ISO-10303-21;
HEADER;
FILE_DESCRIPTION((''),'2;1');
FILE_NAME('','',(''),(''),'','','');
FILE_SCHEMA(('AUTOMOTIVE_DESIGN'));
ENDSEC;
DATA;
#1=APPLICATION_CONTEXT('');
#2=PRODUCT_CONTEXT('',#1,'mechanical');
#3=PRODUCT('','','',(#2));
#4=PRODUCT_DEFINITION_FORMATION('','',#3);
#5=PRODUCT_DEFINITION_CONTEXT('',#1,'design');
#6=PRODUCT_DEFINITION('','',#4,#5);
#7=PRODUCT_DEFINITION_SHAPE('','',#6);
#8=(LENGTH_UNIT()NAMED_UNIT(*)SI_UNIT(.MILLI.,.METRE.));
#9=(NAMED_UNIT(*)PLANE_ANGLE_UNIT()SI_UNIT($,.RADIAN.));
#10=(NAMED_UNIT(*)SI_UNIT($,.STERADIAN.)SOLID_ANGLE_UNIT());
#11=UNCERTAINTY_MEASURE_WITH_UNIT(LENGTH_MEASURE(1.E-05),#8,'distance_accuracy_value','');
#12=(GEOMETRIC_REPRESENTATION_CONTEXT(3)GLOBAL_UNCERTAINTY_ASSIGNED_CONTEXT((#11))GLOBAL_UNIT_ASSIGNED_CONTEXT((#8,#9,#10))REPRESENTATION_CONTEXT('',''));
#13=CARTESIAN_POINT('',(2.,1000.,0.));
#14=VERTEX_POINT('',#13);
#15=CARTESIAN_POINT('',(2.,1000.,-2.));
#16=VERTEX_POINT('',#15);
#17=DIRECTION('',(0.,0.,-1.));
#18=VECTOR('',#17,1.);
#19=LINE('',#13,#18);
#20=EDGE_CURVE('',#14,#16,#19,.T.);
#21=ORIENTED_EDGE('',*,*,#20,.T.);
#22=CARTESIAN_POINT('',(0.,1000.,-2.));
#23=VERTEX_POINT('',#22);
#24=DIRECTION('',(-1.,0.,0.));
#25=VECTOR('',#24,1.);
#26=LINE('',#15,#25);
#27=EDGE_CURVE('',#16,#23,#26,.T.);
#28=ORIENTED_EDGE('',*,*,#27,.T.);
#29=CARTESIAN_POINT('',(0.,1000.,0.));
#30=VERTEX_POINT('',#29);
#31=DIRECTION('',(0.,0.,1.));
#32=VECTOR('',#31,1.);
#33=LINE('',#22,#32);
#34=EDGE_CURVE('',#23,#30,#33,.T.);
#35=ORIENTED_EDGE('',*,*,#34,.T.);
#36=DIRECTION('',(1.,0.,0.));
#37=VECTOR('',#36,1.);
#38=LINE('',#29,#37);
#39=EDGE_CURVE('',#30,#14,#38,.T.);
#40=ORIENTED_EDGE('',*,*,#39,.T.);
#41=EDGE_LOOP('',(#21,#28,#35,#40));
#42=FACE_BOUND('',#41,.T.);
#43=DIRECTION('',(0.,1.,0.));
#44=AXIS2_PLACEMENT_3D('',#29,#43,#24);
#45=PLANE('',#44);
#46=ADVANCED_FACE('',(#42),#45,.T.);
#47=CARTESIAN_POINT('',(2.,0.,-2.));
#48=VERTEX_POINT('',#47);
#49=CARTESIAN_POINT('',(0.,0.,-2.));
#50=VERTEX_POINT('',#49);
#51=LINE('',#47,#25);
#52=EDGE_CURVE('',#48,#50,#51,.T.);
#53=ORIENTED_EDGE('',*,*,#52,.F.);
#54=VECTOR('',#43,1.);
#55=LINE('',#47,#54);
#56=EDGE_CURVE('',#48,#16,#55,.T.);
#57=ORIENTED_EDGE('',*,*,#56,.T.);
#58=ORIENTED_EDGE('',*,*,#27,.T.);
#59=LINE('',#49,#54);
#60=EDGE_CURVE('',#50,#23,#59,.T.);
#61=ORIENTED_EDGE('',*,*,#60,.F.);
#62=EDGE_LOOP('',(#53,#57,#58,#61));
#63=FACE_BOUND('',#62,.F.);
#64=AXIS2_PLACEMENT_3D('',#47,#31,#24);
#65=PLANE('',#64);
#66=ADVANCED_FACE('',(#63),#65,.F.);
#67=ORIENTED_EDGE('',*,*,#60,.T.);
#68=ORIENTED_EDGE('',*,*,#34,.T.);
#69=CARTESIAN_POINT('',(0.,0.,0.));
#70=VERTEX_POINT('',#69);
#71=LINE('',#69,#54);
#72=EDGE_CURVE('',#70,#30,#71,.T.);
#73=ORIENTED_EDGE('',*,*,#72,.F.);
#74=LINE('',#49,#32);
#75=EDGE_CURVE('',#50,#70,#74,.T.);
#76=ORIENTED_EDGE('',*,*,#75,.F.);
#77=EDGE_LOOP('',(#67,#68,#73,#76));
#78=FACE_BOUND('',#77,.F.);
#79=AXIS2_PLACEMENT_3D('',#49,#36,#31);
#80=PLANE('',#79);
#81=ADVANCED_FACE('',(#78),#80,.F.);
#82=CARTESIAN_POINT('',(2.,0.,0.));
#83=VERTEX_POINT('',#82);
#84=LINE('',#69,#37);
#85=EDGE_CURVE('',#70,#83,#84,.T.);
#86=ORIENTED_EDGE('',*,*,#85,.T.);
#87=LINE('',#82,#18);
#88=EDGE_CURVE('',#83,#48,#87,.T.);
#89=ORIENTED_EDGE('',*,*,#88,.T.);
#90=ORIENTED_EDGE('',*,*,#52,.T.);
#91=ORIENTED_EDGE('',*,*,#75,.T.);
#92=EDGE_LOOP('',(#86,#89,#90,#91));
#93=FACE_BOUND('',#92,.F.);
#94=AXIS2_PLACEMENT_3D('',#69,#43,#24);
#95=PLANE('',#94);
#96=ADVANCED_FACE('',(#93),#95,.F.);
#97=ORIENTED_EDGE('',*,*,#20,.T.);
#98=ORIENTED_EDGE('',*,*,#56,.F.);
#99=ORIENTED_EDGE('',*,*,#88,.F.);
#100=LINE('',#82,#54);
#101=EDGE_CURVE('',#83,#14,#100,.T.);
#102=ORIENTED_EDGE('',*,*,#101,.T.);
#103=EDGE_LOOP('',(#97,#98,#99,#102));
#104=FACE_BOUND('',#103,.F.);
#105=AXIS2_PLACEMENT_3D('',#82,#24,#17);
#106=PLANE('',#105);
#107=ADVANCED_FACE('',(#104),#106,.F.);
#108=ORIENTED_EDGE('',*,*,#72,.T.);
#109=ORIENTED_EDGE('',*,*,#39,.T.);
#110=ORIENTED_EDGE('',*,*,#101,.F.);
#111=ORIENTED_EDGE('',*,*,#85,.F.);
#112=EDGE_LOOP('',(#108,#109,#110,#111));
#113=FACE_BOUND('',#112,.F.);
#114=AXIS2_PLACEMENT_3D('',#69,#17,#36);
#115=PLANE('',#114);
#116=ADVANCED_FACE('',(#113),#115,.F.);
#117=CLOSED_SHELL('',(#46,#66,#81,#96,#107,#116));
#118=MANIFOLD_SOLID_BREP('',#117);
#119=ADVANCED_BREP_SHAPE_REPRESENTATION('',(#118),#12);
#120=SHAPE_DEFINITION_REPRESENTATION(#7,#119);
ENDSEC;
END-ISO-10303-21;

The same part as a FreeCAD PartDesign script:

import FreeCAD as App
import Part
import Sketcher
Q = App.Units.Quantity

doc = App.newDocument("Part")
body = doc.addObject("PartDesign::Body", "Body")

sketch1 = doc.addObject("Sketcher::SketchObject", "Sketch")
body.addObject(sketch1)
sketch1.AttachmentSupport = (doc.XZ_Plane, [""])
sketch1.MapMode = "FlatFace"
sketch1.addGeometry(Part.LineSegment(App.Vector(0, -2, 0), App.Vector(0, 0, 0)), False)
sketch1.addGeometry(Part.LineSegment(App.Vector(0, 0, 0), App.Vector(2, 0, 0)), False)
sketch1.addGeometry(Part.LineSegment(App.Vector(2, 0, 0), App.Vector(2, -2, 0)), False)
sketch1.addGeometry(Part.LineSegment(App.Vector(2, -2, 0), App.Vector(0, -2, 0)), False)
sketch1.addConstraint(Sketcher.Constraint("Coincident", 0, 2, 1, 1))
sketch1.addConstraint(Sketcher.Constraint("Coincident", 1, 2, 2, 1))
sketch1.addConstraint(Sketcher.Constraint("Coincident", 2, 2, 3, 1))
sketch1.addConstraint(Sketcher.Constraint("Coincident", 3, 2, 0, 1))
sketch1.addConstraint(Sketcher.Constraint("Vertical", 0))
sketch1.addConstraint(Sketcher.Constraint("Horizontal", 1))
sketch1.addConstraint(Sketcher.Constraint("Vertical", 2))
sketch1.addConstraint(Sketcher.Constraint("Horizontal", 3))
sketch1.addConstraint(Sketcher.Constraint("Coincident", 0, 2, -1, 1))
sketch1.addConstraint(Sketcher.Constraint("Equal", 3, 0))
sketch1.addConstraint(Sketcher.Constraint("DistanceX", 1, 1, 1, 2, Q("2 mm")))
pad1 = doc.addObject("PartDesign::Pad", "Pad")
body.addObject(pad1)
pad1.Profile = sketch1
pad1.Length = 1000
pad1.Reversed = True

doc.recompute()
